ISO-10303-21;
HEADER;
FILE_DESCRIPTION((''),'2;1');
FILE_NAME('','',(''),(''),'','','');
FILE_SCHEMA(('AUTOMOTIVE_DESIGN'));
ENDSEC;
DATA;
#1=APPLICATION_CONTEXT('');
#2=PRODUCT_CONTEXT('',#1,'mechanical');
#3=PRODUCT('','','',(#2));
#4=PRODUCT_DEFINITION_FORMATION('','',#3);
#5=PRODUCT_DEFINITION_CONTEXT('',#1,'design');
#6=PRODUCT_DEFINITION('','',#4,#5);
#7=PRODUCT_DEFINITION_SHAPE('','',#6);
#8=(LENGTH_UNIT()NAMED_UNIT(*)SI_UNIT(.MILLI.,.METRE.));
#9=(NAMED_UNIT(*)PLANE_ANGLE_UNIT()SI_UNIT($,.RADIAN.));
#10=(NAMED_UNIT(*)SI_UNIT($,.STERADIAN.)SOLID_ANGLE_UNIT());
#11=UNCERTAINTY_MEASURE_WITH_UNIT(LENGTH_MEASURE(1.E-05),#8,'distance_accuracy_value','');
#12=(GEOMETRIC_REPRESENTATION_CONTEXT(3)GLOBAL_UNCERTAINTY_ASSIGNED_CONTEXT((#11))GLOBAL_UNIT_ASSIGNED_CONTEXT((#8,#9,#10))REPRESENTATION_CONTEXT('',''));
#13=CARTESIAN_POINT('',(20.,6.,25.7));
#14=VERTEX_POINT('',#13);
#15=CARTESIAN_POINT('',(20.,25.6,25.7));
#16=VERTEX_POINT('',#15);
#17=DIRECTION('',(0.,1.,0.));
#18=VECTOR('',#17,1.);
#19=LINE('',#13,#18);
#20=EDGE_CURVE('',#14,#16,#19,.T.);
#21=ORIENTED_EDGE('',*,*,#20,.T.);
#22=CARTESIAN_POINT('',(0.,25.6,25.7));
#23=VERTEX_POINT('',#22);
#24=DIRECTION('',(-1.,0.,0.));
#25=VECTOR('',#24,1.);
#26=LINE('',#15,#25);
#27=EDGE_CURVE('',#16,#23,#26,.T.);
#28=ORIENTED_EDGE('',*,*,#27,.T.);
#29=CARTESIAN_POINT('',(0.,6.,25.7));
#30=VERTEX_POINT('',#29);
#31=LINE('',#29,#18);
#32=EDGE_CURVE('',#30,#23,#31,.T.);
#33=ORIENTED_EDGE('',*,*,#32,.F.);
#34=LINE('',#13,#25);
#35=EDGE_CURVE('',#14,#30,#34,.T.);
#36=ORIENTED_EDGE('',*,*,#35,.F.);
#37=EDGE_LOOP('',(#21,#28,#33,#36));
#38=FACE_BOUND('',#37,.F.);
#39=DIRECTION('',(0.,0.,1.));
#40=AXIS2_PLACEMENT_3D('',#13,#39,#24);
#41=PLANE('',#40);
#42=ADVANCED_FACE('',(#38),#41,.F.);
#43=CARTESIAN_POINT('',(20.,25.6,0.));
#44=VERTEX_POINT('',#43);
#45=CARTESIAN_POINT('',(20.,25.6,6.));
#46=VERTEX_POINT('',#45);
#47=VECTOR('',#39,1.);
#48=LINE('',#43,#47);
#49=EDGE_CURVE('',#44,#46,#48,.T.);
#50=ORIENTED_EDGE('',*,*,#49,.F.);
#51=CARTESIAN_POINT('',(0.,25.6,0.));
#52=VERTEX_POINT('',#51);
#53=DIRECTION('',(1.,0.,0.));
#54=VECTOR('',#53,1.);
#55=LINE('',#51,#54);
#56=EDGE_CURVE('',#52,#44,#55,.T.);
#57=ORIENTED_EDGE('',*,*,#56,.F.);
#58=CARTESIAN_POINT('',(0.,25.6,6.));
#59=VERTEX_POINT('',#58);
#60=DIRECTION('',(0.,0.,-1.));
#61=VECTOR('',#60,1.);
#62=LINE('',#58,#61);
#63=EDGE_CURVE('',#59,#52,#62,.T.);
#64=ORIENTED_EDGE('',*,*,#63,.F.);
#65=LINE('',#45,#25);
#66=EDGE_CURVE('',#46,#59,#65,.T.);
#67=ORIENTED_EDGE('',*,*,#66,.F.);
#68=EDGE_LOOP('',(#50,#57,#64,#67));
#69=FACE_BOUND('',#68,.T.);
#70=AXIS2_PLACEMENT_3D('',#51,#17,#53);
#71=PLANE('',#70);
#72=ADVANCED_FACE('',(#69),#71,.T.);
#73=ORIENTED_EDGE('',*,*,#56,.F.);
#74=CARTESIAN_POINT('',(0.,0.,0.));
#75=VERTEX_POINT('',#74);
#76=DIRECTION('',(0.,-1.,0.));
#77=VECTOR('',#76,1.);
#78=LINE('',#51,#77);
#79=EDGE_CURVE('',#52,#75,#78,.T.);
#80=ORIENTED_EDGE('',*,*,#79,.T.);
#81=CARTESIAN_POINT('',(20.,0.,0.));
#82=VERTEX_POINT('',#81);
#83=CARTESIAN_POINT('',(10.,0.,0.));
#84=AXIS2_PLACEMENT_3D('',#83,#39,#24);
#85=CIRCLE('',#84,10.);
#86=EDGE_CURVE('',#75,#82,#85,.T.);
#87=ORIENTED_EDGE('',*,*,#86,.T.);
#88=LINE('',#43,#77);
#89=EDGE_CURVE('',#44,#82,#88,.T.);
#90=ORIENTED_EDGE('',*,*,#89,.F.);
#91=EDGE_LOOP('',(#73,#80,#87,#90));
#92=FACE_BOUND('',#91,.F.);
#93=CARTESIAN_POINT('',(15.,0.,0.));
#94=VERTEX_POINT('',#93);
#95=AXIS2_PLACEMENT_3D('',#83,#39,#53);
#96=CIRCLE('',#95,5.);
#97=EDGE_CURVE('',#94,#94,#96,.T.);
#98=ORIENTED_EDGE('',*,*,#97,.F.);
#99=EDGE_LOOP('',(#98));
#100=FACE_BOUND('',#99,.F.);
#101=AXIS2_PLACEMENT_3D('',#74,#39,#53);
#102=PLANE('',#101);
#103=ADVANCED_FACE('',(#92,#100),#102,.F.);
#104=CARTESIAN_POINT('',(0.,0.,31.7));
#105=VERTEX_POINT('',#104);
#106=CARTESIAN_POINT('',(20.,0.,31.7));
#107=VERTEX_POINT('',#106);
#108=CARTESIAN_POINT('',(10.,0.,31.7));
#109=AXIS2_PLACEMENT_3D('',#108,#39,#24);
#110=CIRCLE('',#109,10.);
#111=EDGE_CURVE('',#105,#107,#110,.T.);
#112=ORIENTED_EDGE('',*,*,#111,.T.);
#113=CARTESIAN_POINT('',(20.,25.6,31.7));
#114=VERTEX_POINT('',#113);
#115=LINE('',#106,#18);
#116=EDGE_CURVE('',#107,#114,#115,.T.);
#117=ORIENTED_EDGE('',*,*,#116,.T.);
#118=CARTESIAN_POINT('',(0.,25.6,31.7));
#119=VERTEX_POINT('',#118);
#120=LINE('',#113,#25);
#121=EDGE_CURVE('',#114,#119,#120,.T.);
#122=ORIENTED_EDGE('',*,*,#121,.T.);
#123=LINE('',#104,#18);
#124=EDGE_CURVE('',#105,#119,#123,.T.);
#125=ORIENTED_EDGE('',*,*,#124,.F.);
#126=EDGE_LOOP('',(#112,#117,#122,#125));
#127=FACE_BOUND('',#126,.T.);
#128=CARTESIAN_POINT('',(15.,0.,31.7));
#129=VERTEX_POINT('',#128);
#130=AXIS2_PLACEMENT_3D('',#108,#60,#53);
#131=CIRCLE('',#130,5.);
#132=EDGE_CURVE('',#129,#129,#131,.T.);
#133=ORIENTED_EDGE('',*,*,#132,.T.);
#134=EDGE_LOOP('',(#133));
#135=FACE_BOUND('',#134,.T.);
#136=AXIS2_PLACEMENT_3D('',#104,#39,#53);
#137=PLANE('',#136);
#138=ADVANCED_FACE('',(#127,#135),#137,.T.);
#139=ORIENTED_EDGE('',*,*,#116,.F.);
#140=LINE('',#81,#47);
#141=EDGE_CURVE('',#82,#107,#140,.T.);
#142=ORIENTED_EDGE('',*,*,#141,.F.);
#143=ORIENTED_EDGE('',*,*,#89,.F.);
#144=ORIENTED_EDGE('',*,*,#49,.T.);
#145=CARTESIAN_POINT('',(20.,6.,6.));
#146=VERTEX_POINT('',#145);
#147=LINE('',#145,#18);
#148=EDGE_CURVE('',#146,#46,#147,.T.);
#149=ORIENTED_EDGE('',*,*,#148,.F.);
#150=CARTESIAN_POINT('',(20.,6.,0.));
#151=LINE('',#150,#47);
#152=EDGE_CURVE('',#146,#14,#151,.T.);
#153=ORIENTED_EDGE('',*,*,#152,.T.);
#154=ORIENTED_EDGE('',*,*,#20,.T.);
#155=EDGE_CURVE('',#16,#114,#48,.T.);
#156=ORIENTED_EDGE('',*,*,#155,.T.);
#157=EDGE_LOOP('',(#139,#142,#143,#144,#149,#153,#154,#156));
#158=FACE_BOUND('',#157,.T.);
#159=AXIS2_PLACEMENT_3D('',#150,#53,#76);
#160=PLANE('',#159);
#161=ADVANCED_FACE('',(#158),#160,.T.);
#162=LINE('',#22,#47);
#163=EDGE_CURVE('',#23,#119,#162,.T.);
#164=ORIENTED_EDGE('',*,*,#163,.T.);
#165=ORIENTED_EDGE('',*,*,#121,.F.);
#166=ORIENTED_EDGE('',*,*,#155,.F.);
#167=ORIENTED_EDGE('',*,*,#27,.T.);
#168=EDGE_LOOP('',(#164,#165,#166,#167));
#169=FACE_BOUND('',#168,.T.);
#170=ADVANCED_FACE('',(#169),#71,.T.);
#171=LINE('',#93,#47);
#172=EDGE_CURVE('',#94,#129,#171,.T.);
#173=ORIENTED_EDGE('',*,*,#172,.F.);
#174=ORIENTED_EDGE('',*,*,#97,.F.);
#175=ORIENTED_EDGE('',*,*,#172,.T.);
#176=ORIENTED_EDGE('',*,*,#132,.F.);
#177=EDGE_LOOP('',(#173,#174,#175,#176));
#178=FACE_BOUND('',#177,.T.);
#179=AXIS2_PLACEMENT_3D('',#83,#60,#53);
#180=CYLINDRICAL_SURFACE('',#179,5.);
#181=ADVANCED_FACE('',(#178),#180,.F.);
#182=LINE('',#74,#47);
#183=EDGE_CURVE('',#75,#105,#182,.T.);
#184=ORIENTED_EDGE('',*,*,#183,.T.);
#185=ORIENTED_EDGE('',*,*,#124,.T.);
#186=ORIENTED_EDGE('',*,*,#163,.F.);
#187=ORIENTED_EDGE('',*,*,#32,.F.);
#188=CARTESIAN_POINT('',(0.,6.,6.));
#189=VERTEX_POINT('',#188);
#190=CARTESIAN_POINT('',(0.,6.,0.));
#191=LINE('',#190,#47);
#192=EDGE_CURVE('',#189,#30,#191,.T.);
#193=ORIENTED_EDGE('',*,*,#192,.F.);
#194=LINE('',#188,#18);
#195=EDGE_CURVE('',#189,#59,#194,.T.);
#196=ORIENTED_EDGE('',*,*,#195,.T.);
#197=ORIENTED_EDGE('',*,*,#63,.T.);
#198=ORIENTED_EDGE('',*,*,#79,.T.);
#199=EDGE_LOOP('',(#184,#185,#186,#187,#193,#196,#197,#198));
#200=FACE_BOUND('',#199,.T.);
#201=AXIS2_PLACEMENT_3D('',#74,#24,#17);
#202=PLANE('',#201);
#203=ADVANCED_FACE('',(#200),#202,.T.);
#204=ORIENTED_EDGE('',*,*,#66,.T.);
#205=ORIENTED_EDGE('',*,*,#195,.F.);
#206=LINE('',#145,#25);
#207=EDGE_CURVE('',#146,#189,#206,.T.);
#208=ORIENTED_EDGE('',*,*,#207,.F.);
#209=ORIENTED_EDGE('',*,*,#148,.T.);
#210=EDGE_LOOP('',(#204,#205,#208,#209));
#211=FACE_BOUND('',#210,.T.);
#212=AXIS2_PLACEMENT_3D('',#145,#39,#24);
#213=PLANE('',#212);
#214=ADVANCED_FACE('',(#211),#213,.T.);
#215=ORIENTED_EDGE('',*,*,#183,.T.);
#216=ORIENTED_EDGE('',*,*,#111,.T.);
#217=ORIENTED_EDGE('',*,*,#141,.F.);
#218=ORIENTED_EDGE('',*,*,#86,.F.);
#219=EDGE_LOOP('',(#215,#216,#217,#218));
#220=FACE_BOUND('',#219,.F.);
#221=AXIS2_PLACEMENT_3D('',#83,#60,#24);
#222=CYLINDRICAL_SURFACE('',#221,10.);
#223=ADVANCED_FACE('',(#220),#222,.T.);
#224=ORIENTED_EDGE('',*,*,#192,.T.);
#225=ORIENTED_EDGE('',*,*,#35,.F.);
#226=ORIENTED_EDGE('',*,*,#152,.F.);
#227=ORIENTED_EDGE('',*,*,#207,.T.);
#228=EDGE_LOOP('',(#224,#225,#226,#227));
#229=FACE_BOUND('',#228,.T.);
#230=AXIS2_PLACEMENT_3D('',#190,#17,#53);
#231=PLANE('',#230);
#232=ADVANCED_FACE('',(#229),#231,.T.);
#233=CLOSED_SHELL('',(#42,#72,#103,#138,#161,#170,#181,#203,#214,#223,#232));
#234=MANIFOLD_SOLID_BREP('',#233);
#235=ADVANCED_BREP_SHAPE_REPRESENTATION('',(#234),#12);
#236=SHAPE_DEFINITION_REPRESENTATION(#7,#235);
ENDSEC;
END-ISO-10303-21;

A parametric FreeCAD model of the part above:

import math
import FreeCAD as App
import Part
import Sketcher

V = App.Vector


def add_polygon(sketch, points):
    """Adds a closed chain of lines whose ends are joined by coincident constraints."""
    first, n = sketch.GeometryCount, len(points)
    for a, b in zip(points, points[1:] + points[:1]):
        sketch.addGeometry(Part.LineSegment(App.Vector(*a, 0), App.Vector(*b, 0)), False)
    for i in range(n):
        sketch.addConstraint(Sketcher.Constraint("Coincident", first + i, 2, first + (i + 1) % n, 1))

doc = App.newDocument("Part")
params = doc.addObject("Spreadsheet::Sheet", "Params")
for row, (alias, value) in enumerate([
    ("sketch1_diameter", "10 mm"),
    ("sketch1_radius", "10 mm"),
    ("sketch1_height", "6 mm"),
    ("pad1_length", "31.7 mm"),
    ("sketch2_height", "6 mm"),
    ("sketch2_width", "20 mm"),
    ("pad2_length", "19.6 mm"),
], start=1):
    params.set(f"A{row}", alias)
    params.set(f"B{row}", "=" + value)
    params.setAlias(f"B{row}", alias)

body = doc.addObject("PartDesign::Body", "Body")

sketch1 = body.newObject("Sketcher::SketchObject", "Sketch")
sketch1.AttachmentSupport = (doc.getObject("XY_Plane"), [""])
sketch1.MapMode = "FlatFace"
sketch1.addGeometry([
    Part.LineSegment(V(0, 6, 0), V(0, 0, 0)),
    Part.ArcOfCircle(Part.Circle(V(10, 0, 0), V(0, 0, 1), 10), math.radians(180), math.radians(360)),
    Part.LineSegment(V(20, 0, 0), V(20, 6, 0)),
    Part.LineSegment(V(20, 6, 0), V(0, 6, 0)),
    Part.Circle(V(10, 0, 0), V(0, 0, 1), 5),
], False)
sketch1.addConstraint([
    Sketcher.Constraint("Tangent", 0, 2, 1, 1),
    Sketcher.Constraint("Tangent", 1, 2, 2, 1),
    Sketcher.Constraint("Coincident", 2, 2, 3, 1),
    Sketcher.Constraint("Coincident", 3, 2, 0, 1),
    Sketcher.Constraint("Vertical", 0),
    Sketcher.Constraint("Vertical", 2),
    Sketcher.Constraint("Horizontal", 3),
    Sketcher.Constraint("Coincident", 0, 2, -1, 1),
    Sketcher.Constraint("Coincident", 4, 3, 1, 3),
    Sketcher.Constraint("Diameter", 4, 10.0),
    Sketcher.Constraint("Radius", 1, 10.0),
    Sketcher.Constraint("DistanceY", 0, 2, 0, 1, 6.0),
])
sketch1.setExpression("Constraints[9]", "Params.sketch1_diameter")
sketch1.setExpression("Constraints[10]", "Params.sketch1_radius")
sketch1.setExpression("Constraints[11]", "Params.sketch1_height")
pad1 = body.newObject("PartDesign::Pad", "Pad")
pad1.Profile = sketch1
pad1.setExpression("Length", "Params.pad1_length")

sketch2 = body.newObject("Sketcher::SketchObject", "Sketch001")
sketch2.AttachmentSupport = (doc.getObject("XZ_Plane"), [""])
sketch2.MapMode = "FlatFace"
sketch2.AttachmentOffset = App.Placement(V(0, 0, -6), App.Rotation())
add_polygon(sketch2, [(20, 32), (20, 26), (0, 26), (0, 32)])
add_polygon(sketch2, [(20, 6), (20, 0), (0, 0), (0, 6)])
sketch2.addConstraint([
    Sketcher.Constraint("Vertical", 0),
    Sketcher.Constraint("Horizontal", 1),
    Sketcher.Constraint("Vertical", 2),
    Sketcher.Constraint("Horizontal", 3),
    Sketcher.Constraint("Vertical", 4),
    Sketcher.Constraint("Horizontal", 5),
    Sketcher.Constraint("Vertical", 6),
    Sketcher.Constraint("Horizontal", 7),
    Sketcher.Constraint("Coincident", 5, 2, -1, 1),
    Sketcher.Constraint("PointOnObject", 1, 2, -2),
    Sketcher.Constraint("Vertical", 3, 2, 4, 2),
    Sketcher.Constraint("Equal", 2, 4),
    Sketcher.Constraint("DistanceY", 0, 2, 0, 1, 6.0),
    Sketcher.Constraint("DistanceX", 1, 2, 1, 1, 20.0),
    Sketcher.Constraint("DistanceY", -1, 1, 0, 2, 25.7),
])
sketch2.setExpression("Constraints[20]", "Params.sketch2_height")
sketch2.setExpression("Constraints[21]", "Params.sketch2_width")
pad2 = body.newObject("PartDesign::Pad", "Pad001")
pad2.Profile = sketch2
pad2.setExpression("Length", "Params.pad2_length")
pad2.Reversed = True

doc.recompute()
